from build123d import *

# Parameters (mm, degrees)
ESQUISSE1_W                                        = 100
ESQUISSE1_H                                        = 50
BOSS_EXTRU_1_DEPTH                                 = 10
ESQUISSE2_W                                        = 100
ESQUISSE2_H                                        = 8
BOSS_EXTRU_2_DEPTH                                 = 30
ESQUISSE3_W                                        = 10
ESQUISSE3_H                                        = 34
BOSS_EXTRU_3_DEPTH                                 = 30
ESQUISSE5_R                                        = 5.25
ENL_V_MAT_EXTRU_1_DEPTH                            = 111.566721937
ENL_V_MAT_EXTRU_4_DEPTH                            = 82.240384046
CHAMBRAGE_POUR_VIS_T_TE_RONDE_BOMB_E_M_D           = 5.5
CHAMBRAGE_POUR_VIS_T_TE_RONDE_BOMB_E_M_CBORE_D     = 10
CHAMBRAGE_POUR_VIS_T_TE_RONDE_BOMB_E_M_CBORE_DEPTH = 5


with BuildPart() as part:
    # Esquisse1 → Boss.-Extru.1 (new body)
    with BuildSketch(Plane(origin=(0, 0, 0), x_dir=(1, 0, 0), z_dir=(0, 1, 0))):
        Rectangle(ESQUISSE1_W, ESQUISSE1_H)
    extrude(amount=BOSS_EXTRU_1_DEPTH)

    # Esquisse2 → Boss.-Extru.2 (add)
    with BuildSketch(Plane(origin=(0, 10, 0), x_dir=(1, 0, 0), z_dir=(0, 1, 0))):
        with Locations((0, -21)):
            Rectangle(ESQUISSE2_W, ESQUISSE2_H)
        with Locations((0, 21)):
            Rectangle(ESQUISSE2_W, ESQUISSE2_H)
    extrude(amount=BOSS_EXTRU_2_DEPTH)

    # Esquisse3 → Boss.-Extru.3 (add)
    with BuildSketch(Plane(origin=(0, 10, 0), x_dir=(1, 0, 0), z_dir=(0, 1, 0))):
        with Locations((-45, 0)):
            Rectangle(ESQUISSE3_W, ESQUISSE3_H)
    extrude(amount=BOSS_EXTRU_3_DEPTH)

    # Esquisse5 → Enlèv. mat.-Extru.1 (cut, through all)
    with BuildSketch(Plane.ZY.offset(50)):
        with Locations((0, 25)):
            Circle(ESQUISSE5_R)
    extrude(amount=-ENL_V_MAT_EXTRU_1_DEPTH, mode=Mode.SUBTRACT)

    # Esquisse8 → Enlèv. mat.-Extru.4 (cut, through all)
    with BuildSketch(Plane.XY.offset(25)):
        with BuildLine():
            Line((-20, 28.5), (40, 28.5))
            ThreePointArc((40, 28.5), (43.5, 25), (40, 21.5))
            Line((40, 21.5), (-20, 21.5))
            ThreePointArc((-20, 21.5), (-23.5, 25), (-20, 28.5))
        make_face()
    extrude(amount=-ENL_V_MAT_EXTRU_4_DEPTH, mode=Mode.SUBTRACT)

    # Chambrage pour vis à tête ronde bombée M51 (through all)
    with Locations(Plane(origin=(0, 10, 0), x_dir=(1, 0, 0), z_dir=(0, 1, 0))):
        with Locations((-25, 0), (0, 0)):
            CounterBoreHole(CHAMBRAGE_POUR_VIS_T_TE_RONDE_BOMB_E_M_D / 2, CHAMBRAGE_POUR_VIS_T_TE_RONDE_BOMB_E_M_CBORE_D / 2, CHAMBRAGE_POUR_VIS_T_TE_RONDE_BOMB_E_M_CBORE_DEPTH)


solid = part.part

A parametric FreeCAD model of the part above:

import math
import FreeCAD as App
import Part
import Sketcher

V = App.Vector


def add_polygon(sketch, points):
    """Adds a closed chain of lines whose ends are joined by coincident constraints."""
    first, n = sketch.GeometryCount, len(points)
    for a, b in zip(points, points[1:] + points[:1]):
        sketch.addGeometry(Part.LineSegment(App.Vector(*a, 0), App.Vector(*b, 0)), False)
    for i in range(n):
        sketch.addConstraint(Sketcher.Constraint("Coincident", first + i, 2, first + (i + 1) % n, 1))

doc = App.newDocument("Part")
body = doc.addObject("PartDesign::Body", "Body")

# Sketch on XZ plane
sketch1 = doc.addObject("Sketcher::SketchObject", "Sketch")
body.addObject(sketch1)
sketch1.AttachmentSupport = (doc.XZ_Plane, [""])
sketch1.MapMode = "FlatFace"
add_polygon(sketch1, [(-50, -25), (-50, 25), (50, 25), (50, -25)])  # lines 0-3
sketch1.addConstraint([
    Sketcher.Constraint("Vertical", 0),
    Sketcher.Constraint("Horizontal", 1),
    Sketcher.Constraint("Vertical", 2),
    Sketcher.Constraint("Horizontal", 3),
    Sketcher.Constraint("Symmetric", 0, 2, 2, 2, -1, 1),
    Sketcher.Constraint("DistanceX", 1, 1, 1, 2, 100.0),
    Sketcher.Constraint("DistanceY", 0, 1, 0, 2, 50.0),
])
pad1 = doc.addObject("PartDesign::Pad", "Pad")
body.addObject(pad1)
pad1.Profile = sketch1
pad1.Length = 10
pad1.Reversed = True

# Sketch on XZ plane
sketch2 = doc.addObject("Sketcher::SketchObject", "Sketch001")
body.addObject(sketch2)
sketch2.AttachmentSupport = (doc.XZ_Plane, [""])
sketch2.MapMode = "FlatFace"
sketch2.AttachmentOffset = App.Placement(V(0, 0, -10), App.Rotation())
add_polygon(sketch2, [(-50, 17), (-50, 25), (50, 25), (50, 17)])  # lines 0-3
add_polygon(sketch2, [(-50, -25), (-50, -17), (50, -17), (50, -25)])  # lines 4-7
sketch2.addConstraint([
    Sketcher.Constraint("Vertical", 0),
    Sketcher.Constraint("Horizontal", 1),
    Sketcher.Constraint("Vertical", 2),
    Sketcher.Constraint("Horizontal", 3),
    Sketcher.Constraint("Vertical", 4),
    Sketcher.Constraint("Horizontal", 5),
    Sketcher.Constraint("Vertical", 6),
    Sketcher.Constraint("Horizontal", 7),
    Sketcher.Constraint("Symmetric", 2, 2, 4, 2, -1, 1),
    Sketcher.Constraint("Symmetric", 0, 2, 6, 2, -1, 1),
    Sketcher.Constraint("Vertical", 3, 2, 4, 2),
    Sketcher.Constraint("DistanceX", 1, 1, 1, 2, 100.0),
    Sketcher.Constraint("DistanceY", 0, 1, 0, 2, 8.0),
    Sketcher.Constraint("DistanceY", -1, 1, 0, 2, 25.0),
])
pad2 = doc.addObject("PartDesign::Pad", "Pad001")
body.addObject(pad2)
pad2.Profile = sketch2
pad2.Length = 30
pad2.Reversed = True

# Sketch on XZ plane
sketch3 = doc.addObject("Sketcher::SketchObject", "Sketch002")
body.addObject(sketch3)
sketch3.AttachmentSupport = (doc.XZ_Plane, [""])
sketch3.MapMode = "FlatFace"
sketch3.AttachmentOffset = App.Placement(V(0, 0, -10), App.Rotation())
add_polygon(sketch3, [(-50, -17), (-50, 17), (-40, 17), (-40, -17)])  # lines 0-3
sketch3.addConstraint([
    Sketcher.Constraint("Vertical", 0),
    Sketcher.Constraint("Horizontal", 1),
    Sketcher.Constraint("Vertical", 2),
    Sketcher.Constraint("Horizontal", 3),
    Sketcher.Constraint("DistanceX", 1, 1, 1, 2, 10.0),
    Sketcher.Constraint("DistanceY", 0, 1, 0, 2, 34.0),
    Sketcher.Constraint("DistanceX", 0, 2, -1, 1, 50.0),
    Sketcher.Constraint("DistanceY", -1, 1, 0, 2, 17.0),
])
pad3 = doc.addObject("PartDesign::Pad", "Pad002")
body.addObject(pad3)
pad3.Profile = sketch3
pad3.Length = 30
pad3.Reversed = True

# Sketch on YZ plane
sketch4 = doc.addObject("Sketcher::SketchObject", "Sketch003")
body.addObject(sketch4)
sketch4.AttachmentSupport = (doc.YZ_Plane, [""])
sketch4.MapMode = "FlatFace"
sketch4.AttachmentOffset = App.Placement(V(0, 0, -50), App.Rotation())
sketch4.addGeometry(Part.Circle(V(25, 0, 0), V(0, 0, 1), 5.25), False)
sketch4.addConstraint([
    Sketcher.Constraint("PointOnObject", 0, 3, -1),
    Sketcher.Constraint("Diameter", 0, 10.5),
    Sketcher.Constraint("DistanceX", -1, 1, 0, 3, 25.0),
])
pocket1 = doc.addObject("PartDesign::Pocket", "Pocket")
body.addObject(pocket1)
pocket1.Profile = sketch4
pocket1.Type = "ThroughAll"
pocket1.Reversed = True

# Sketch on XY plane
sketch5 = doc.addObject("Sketcher::SketchObject", "Sketch004")
body.addObject(sketch5)
sketch5.AttachmentSupport = (doc.XY_Plane, [""])
sketch5.MapMode = "FlatFace"
sketch5.AttachmentOffset = App.Placement(V(0, 0, 25), App.Rotation())
sketch5.addGeometry([
    Part.LineSegment(V(40, 28.5, 0), V(-20, 28.5, 0)),
    Part.ArcOfCircle(Part.Circle(V(-20, 25, 0), V(0, 0, 1), 3.5), math.radians(90), math.radians(270)),
    Part.LineSegment(V(-20, 21.5, 0), V(40, 21.5, 0)),
    Part.ArcOfCircle(Part.Circle(V(40, 25, 0), V(0, 0, 1), 3.5), math.radians(-90), math.radians(90)),
], False)
sketch5.addConstraint([
    Sketcher.Constraint("Tangent", 0, 2, 1, 1),
    Sketcher.Constraint("Tangent", 1, 2, 2, 1),
    Sketcher.Constraint("Tangent", 2, 2, 3, 1),
    Sketcher.Constraint("Tangent", 3, 2, 0, 1),
    Sketcher.Constraint("Horizontal", 0),
    Sketcher.Constraint("Horizontal", 2),
    Sketcher.Constraint("Radius", 1, 3.5),
    Sketcher.Constraint("DistanceX", 0, 2, 0, 1, 60.0),
    Sketcher.Constraint("DistanceX", 1, 3, -1, 1, 20.0),
    Sketcher.Constraint("DistanceY", -1, 1, 1, 3, 25.0),
])
pocket2 = doc.addObject("PartDesign::Pocket", "Pocket001")
body.addObject(pocket2)
pocket2.Profile = sketch5
pocket2.Type = "ThroughAll"

# Sketch on XZ plane
sketch6 = doc.addObject("Sketcher::SketchObject", "Sketch005")
body.addObject(sketch6)
sketch6.AttachmentSupport = (doc.XZ_Plane, [""])
sketch6.MapMode = "FlatFace"
sketch6.AttachmentOffset = App.Placement(V(0, 0, -10), App.Rotation())
sketch6.addGeometry([
    Part.Circle(V(-25, 0, 0), V(0, 0, 1), 2.75),
    Part.Circle(V(0, 0, 0), V(0, 0, 1), 2.75),
], False)
sketch6.addConstraint([
    Sketcher.Constraint("Coincident", 1, 3, -1, 1),
    Sketcher.Constraint("Equal", 0, 1),
    Sketcher.Constraint("PointOnObject", 0, 3, -1),
    Sketcher.Constraint("Diameter", 0, 5.5),
    Sketcher.Constraint("DistanceX", 0, 3, -1, 1, 25.0),
])
doc.recompute()
hole = doc.addObject("PartDesign::Hole", "Hole")
body.addObject(hole)
hole.Profile = sketch6
hole.ThreadType = "None"
hole.Diameter = 5.5
hole.DepthType = "ThroughAll"
hole.HoleCutType = "Counterbore"
hole.HoleCutDiameter = 10
hole.HoleCutDepth = 5
hole.Reversed = True

doc.recompute()
